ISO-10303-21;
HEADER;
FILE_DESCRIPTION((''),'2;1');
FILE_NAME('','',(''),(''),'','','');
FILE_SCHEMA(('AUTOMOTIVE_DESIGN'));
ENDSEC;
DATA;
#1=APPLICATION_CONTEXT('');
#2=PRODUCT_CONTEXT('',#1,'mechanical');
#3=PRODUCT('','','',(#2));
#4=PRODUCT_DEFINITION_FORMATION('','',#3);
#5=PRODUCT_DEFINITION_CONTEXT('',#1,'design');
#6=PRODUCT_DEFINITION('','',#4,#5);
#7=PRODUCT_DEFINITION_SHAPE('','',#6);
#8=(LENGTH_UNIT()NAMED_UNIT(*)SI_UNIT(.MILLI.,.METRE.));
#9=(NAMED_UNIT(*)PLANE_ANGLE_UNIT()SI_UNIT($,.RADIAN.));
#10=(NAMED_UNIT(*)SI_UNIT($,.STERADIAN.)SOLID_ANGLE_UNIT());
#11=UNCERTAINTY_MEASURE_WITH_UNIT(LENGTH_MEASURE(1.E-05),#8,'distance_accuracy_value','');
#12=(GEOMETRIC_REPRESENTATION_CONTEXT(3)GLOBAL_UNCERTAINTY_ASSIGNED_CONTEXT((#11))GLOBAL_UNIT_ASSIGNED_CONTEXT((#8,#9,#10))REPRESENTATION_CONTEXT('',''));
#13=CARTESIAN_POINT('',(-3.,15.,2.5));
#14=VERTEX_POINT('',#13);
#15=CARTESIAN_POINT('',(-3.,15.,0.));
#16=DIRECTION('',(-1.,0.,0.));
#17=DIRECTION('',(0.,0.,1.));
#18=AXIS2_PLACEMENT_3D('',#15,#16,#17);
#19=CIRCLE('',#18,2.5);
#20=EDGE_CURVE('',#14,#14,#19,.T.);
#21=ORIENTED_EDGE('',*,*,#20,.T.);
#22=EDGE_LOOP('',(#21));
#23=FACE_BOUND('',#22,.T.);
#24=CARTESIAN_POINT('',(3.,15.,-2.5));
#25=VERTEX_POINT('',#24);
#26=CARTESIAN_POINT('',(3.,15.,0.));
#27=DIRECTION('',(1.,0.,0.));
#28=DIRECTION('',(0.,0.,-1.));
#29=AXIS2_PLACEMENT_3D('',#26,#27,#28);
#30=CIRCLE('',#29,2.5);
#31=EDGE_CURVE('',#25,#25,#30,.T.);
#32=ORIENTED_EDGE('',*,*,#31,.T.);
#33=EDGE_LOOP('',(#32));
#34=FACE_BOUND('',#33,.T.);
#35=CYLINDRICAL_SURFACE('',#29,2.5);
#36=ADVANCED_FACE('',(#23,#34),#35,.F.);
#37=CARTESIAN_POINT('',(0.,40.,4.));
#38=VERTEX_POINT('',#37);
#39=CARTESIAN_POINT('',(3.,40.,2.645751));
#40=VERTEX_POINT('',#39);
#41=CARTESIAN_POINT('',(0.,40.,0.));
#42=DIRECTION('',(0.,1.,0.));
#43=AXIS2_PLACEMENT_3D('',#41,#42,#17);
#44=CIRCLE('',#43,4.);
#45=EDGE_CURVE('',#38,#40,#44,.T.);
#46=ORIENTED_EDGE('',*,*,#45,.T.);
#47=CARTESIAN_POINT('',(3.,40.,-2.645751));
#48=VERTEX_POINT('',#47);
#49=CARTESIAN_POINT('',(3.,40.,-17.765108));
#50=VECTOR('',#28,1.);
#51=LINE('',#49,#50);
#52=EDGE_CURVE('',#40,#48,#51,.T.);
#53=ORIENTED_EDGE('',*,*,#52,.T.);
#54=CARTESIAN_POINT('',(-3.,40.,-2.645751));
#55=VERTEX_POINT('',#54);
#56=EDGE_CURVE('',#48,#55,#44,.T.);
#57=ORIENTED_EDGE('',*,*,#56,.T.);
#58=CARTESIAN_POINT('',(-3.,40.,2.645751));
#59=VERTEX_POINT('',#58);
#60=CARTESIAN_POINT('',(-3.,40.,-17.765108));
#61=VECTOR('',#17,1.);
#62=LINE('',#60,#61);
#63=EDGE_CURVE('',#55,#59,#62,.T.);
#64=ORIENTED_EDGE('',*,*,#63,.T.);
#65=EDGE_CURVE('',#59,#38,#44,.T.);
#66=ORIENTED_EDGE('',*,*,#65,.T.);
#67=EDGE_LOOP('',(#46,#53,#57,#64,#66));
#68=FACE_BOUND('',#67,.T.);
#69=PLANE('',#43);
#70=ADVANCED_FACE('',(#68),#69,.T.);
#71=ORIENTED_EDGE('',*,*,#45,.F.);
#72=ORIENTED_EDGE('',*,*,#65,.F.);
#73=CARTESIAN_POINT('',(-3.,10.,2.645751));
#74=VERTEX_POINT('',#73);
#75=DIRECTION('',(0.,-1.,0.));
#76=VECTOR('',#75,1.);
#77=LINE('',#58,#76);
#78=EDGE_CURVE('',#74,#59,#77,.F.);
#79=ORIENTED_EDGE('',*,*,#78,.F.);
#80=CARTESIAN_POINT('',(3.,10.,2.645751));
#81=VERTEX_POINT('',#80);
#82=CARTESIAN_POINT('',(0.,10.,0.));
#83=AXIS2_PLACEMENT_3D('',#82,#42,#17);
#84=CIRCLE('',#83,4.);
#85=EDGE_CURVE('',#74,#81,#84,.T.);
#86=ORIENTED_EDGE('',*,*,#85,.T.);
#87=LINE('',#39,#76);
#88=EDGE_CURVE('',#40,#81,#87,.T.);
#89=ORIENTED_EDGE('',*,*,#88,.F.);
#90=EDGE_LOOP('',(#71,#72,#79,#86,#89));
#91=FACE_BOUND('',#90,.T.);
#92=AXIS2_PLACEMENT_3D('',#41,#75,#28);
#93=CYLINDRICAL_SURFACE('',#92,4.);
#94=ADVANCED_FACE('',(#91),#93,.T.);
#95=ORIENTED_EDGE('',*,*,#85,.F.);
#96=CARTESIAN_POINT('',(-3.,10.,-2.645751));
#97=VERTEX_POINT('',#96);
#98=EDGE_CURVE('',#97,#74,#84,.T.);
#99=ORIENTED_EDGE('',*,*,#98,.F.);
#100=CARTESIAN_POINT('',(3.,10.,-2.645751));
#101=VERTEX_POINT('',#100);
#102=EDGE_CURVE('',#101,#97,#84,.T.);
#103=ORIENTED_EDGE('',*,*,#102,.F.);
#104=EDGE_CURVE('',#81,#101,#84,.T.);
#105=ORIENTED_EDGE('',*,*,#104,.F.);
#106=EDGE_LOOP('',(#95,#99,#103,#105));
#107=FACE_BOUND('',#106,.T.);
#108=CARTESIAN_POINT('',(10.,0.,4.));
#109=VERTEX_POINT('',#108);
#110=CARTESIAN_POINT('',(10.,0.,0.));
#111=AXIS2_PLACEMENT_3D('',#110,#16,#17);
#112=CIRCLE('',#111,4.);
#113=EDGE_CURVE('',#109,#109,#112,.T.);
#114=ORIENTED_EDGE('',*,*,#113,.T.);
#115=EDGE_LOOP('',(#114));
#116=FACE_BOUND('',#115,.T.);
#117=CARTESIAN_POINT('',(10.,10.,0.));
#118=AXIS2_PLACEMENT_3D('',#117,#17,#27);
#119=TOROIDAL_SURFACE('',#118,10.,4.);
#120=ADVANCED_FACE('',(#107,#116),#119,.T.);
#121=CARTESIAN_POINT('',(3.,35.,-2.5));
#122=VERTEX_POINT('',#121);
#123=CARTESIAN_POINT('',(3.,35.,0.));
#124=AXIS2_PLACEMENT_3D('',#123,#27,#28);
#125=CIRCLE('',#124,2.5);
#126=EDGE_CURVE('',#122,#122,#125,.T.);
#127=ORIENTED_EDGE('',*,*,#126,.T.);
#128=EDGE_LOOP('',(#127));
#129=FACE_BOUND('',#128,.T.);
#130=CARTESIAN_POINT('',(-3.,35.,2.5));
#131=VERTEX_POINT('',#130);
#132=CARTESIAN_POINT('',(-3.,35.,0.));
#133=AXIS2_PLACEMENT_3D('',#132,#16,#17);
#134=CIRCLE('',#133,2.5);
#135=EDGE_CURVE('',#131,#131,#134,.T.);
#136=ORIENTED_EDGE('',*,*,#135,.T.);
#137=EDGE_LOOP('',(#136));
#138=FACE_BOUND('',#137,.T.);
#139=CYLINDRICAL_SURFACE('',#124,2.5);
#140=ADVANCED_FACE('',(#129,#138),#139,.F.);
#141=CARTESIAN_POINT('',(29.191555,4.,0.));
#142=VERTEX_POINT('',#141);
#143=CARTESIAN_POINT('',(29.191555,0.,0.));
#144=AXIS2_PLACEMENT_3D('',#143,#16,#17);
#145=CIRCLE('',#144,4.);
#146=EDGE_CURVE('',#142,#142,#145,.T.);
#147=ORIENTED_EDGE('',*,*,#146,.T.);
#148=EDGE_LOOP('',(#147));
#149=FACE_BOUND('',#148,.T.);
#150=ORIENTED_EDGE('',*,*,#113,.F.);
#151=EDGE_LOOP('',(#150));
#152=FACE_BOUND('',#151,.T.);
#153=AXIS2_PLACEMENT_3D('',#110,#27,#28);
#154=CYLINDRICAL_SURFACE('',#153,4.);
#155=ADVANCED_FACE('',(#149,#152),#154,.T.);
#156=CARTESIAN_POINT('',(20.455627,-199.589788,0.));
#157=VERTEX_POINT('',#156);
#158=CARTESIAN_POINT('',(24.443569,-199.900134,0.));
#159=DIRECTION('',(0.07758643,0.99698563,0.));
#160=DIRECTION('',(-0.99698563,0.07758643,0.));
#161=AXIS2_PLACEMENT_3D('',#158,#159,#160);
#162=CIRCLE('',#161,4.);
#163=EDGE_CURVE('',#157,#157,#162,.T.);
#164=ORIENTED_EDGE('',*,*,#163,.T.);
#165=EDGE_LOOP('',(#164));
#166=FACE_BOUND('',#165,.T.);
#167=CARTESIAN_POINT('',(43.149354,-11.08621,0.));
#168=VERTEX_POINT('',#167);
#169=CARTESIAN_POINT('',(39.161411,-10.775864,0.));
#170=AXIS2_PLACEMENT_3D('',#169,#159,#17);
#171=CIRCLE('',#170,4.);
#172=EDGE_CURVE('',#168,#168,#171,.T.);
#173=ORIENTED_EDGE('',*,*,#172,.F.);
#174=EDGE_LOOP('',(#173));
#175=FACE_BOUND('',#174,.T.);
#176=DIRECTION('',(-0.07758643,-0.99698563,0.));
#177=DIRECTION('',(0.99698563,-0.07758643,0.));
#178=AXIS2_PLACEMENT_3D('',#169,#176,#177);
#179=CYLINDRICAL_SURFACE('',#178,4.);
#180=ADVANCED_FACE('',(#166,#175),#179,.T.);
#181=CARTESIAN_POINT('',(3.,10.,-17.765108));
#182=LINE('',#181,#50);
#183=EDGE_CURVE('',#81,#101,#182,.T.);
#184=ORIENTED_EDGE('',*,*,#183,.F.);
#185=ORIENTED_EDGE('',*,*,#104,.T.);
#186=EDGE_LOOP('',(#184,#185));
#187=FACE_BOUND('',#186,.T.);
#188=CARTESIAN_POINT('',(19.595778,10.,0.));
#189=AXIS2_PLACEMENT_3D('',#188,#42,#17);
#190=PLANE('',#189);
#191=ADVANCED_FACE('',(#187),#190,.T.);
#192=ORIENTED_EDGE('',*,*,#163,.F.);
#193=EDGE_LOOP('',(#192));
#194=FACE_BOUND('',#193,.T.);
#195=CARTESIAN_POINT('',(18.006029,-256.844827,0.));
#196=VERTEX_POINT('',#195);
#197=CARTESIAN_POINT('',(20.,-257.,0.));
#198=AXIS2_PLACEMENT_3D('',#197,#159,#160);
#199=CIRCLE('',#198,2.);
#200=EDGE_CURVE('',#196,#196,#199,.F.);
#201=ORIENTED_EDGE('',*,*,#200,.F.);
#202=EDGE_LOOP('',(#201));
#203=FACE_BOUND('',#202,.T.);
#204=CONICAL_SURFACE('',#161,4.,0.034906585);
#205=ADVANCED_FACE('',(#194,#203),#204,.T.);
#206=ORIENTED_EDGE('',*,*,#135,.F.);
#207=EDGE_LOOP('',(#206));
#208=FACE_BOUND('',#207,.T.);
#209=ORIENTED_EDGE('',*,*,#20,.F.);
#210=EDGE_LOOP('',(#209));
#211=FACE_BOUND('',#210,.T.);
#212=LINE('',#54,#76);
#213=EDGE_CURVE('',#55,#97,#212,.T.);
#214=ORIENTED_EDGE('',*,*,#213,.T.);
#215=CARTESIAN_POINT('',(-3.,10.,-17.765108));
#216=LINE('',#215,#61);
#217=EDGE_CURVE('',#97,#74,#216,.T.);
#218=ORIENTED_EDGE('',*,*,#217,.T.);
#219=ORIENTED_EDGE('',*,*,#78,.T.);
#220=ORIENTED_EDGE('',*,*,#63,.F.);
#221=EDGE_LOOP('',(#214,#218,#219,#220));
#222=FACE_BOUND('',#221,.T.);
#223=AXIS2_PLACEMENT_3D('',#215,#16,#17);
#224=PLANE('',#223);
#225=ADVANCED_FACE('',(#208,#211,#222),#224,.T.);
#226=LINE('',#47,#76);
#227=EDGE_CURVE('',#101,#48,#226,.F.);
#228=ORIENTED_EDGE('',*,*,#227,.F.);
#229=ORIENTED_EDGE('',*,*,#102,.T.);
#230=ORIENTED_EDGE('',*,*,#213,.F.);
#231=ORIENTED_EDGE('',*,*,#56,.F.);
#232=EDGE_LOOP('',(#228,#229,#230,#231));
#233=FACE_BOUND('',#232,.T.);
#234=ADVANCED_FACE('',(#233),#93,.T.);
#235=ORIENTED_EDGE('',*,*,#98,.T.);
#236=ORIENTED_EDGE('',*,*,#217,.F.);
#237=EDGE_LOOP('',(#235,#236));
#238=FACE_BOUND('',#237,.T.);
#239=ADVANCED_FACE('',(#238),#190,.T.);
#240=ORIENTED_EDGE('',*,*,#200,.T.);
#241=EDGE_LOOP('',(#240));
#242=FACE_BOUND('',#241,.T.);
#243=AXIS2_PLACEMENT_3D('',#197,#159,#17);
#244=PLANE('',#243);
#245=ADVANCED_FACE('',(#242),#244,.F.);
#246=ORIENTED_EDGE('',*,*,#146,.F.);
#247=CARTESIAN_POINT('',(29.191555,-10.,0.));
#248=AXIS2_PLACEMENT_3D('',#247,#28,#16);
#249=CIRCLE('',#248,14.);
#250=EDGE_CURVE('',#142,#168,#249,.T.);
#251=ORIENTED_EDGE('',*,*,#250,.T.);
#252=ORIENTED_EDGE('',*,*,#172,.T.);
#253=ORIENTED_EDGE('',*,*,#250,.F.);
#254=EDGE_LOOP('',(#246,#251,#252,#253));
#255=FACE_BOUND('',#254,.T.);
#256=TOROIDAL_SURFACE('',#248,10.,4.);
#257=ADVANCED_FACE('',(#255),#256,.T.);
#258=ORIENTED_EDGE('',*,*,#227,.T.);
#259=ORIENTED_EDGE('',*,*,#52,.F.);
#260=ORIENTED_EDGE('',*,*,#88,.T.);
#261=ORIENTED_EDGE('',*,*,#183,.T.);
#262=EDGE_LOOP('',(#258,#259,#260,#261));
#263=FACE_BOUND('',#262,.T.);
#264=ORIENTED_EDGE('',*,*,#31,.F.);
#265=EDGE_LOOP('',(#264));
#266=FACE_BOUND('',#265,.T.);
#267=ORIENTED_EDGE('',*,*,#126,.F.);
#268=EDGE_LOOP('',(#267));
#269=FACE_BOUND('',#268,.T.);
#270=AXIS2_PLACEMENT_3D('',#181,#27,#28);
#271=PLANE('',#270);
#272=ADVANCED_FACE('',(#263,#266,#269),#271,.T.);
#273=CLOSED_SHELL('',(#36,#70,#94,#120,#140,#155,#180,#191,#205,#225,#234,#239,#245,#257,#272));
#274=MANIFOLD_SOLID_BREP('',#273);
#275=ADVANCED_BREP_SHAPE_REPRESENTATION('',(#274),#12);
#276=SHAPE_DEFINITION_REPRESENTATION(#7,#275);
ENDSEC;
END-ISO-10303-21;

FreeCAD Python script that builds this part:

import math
import FreeCAD as App
import Part
import Sketcher
from FreeCAD import Vector
Q = App.Units.Quantity


def edges_at(feature, points):
    """Names of the edges that pass closest to the given points."""
    edges = feature.Shape.Edges
    near = lambda p: min(range(len(edges)), key=lambda i: edges[i].distToShape(Part.Vertex(*p))[0])
    return sorted({f"Edge{near(p) + 1}" for p in points})


def add_polygon(sketch, points):
    """Adds a closed chain of lines whose ends are joined by coincident constraints."""
    first, n = sketch.GeometryCount, len(points)
    for a, b in zip(points, points[1:] + points[:1]):
        sketch.addGeometry(Part.LineSegment(App.Vector(*a, 0), App.Vector(*b, 0)), False)
    for i in range(n):
        sketch.addConstraint(Sketcher.Constraint("Coincident", first + i, 2, first + (i + 1) % n, 1))

doc = App.newDocument("Part")
body = doc.addObject("PartDesign::Body", "Body")

sketch1 = doc.addObject("Sketcher::SketchObject", "Sketch")
body.addObject(sketch1)
sketch1.AttachmentSupport = (doc.XZ_Plane, [""])
sketch1.MapMode = "FlatFace"
sketch1.AttachmentOffset = App.Placement(Vector(0, 0, -40), App.Rotation())
sketch1.addGeometry(Part.Circle(Vector(0, 0, 0), Vector(0, 0, 1), 4), False)
sketch1.addConstraint(Sketcher.Constraint("Coincident", 0, 3, -1, 1))
sketch1.addConstraint(Sketcher.Constraint("Diameter", 0, Q("8 mm")))

sketch2 = doc.addObject("Sketcher::SketchObject", "Sketch001")
body.addObject(sketch2)
sketch2.AttachmentSupport = (doc.XY_Plane, [""])
sketch2.MapMode = "FlatFace"
sketch2.addGeometry(Part.LineSegment(Vector(0, 40, 0), Vector(0, 10, 0)), False)
sketch2.addGeometry(Part.ArcOfCircle(Part.Circle(Vector(10, 10, 0), Vector(0, 0, 1), 10), math.radians(180), math.radians(270)), False)
sketch2.addGeometry(Part.LineSegment(Vector(10, 0, 0), Vector(29, 0, 0)), False)
sketch2.addGeometry(Part.ArcOfCircle(Part.Circle(Vector(29, -10, 0), Vector(0, 0, 1), 10), math.radians(-4), math.radians(90)), False)
sketch2.addGeometry(Part.LineSegment(Vector(39, -11, 0), Vector(20, -257, 0)), False)
sketch2.addConstraint(Sketcher.Constraint("Tangent", 0, 2, 1, 1))
sketch2.addConstraint(Sketcher.Constraint("Tangent", 1, 2, 2, 1))
sketch2.addConstraint(Sketcher.Constraint("Tangent", 2, 2, 3, 2))
sketch2.addConstraint(Sketcher.Constraint("Tangent", 3, 1, 4, 1))
sketch2.addConstraint(Sketcher.Constraint("Vertical", 0))
sketch2.addConstraint(Sketcher.Constraint("Horizontal", 2))
sketch2.addConstraint(Sketcher.Constraint("Equal", 1, 3))
sketch2.addConstraint(Sketcher.Constraint("PointOnObject", 0, 1, -2))
sketch2.addConstraint(Sketcher.Constraint("PointOnObject", 1, 2, -1))
sketch2.addConstraint(Sketcher.Constraint("Radius", 1, Q("10 mm")))
sketch2.addConstraint(Sketcher.Constraint("DistanceY", 0, 2, 0, 1, Q("30 mm")))
sketch2.addConstraint(Sketcher.Constraint("DistanceX", -1, 1, 4, 2, Q("20 mm")))
sketch2.addConstraint(Sketcher.Constraint("DistanceY", 4, 2, -1, 1, Q("257 mm")))
sketch2.addConstraint(Sketcher.Constraint("Distance", 4, Q("246.96859 mm")))
doc.recompute()

additivepipe = doc.addObject("PartDesign::AdditivePipe", "AdditivePipe")
body.addObject(additivepipe)
additivepipe.Profile = sketch1
additivepipe.Spine = (sketch2, ["Edge1", "Edge2", "Edge3", "Edge4", "Edge5"])
doc.recompute()

chamfer = doc.addObject("PartDesign::Chamfer", "Chamfer")
body.addObject(chamfer)
chamfer.Base = (additivepipe, edges_at(additivepipe, [(16.012, -256.69, 0)]))
chamfer.ChamferType = "Two distances"
chamfer.Size = 2
chamfer.Size2 = 57.272507
chamfer.FlipDirection = True

sketch3 = doc.addObject("Sketcher::SketchObject", "Sketch002")
body.addObject(sketch3)
sketch3.AttachmentSupport = (doc.XZ_Plane, [""])
sketch3.MapMode = "FlatFace"
sketch3.AttachmentOffset = App.Placement(Vector(0, 0, -40), App.Rotation())
add_polygon(sketch3, [(-35, -35), (-35, 35), (74, 35), (74, -35)])
add_polygon(sketch3, [(3, 18), (-3, 18), (-3, -18), (3, -18)])
sketch3.addConstraint(Sketcher.Constraint("Vertical", 0))
sketch3.addConstraint(Sketcher.Constraint("Horizontal", 1))
sketch3.addConstraint(Sketcher.Constraint("Vertical", 2))
sketch3.addConstraint(Sketcher.Constraint("Horizontal", 3))
sketch3.addConstraint(Sketcher.Constraint("Horizontal", 4))
sketch3.addConstraint(Sketcher.Constraint("Vertical", 5))
sketch3.addConstraint(Sketcher.Constraint("Horizontal", 6))
sketch3.addConstraint(Sketcher.Constraint("Vertical", 7))
sketch3.addConstraint(Sketcher.Constraint("Symmetric", 4, 2, 6, 2, -1, 1))
sketch3.addConstraint(Sketcher.Constraint("DistanceX", 4, 2, 4, 1, Q("6 mm")))
sketch3.addConstraint(Sketcher.Constraint("DistanceX", 1, 1, 1, 2, Q("109.39 mm")))
sketch3.addConstraint(Sketcher.Constraint("DistanceY", 0, 1, 0, 2, Q("70.198 mm")))
sketch3.addConstraint(Sketcher.Constraint("DistanceX", 0, 2, -1, 1, Q("35.099 mm")))
sketch3.addConstraint(Sketcher.Constraint("DistanceY", -1, 1, 0, 2, Q("35.099 mm")))
sketch3.addConstraint(Sketcher.Constraint("DistanceY", 5, 2, 5, 1, Q("35.530215 mm")))
pocket1 = doc.addObject("PartDesign::Pocket", "Pocket")
body.addObject(pocket1)
pocket1.Profile = sketch3
pocket1.Length = 30
pocket1.Reversed = True

sketch4 = doc.addObject("Sketcher::SketchObject", "Sketch003")
body.addObject(sketch4)
sketch4.AttachmentSupport = (doc.YZ_Plane, [""])
sketch4.MapMode = "FlatFace"
sketch4.AttachmentOffset = App.Placement(Vector(0, 0, 3), App.Rotation())
sketch4.addGeometry(Part.Circle(Vector(35, 0, 0), Vector(0, 0, 1), 2.5), False)
sketch4.addGeometry(Part.Circle(Vector(15, 0, 0), Vector(0, 0, 1), 2.5), False)
sketch4.addConstraint(Sketcher.Constraint("Equal", 0, 1))
sketch4.addConstraint(Sketcher.Constraint("PointOnObject", 0, 3, -1))
sketch4.addConstraint(Sketcher.Constraint("PointOnObject", 1, 3, -1))
sketch4.addConstraint(Sketcher.Constraint("Diameter", 0, Q("5 mm")))
sketch4.addConstraint(Sketcher.Constraint("DistanceX", -1, 1, 0, 3, Q("35 mm")))
sketch4.addConstraint(Sketcher.Constraint("DistanceX", -1, 1, 1, 3, Q("15 mm")))
doc.recompute()
hole = doc.addObject("PartDesign::Hole", "Hole")
body.addObject(hole)
hole.Profile = sketch4
hole.ThreadType = "None"
hole.Diameter = 5
hole.DepthType = "Dimension"
hole.Depth = 9
hole.DrillPoint = "Angled"
hole.DrillPointAngle = 118

doc.recompute()
